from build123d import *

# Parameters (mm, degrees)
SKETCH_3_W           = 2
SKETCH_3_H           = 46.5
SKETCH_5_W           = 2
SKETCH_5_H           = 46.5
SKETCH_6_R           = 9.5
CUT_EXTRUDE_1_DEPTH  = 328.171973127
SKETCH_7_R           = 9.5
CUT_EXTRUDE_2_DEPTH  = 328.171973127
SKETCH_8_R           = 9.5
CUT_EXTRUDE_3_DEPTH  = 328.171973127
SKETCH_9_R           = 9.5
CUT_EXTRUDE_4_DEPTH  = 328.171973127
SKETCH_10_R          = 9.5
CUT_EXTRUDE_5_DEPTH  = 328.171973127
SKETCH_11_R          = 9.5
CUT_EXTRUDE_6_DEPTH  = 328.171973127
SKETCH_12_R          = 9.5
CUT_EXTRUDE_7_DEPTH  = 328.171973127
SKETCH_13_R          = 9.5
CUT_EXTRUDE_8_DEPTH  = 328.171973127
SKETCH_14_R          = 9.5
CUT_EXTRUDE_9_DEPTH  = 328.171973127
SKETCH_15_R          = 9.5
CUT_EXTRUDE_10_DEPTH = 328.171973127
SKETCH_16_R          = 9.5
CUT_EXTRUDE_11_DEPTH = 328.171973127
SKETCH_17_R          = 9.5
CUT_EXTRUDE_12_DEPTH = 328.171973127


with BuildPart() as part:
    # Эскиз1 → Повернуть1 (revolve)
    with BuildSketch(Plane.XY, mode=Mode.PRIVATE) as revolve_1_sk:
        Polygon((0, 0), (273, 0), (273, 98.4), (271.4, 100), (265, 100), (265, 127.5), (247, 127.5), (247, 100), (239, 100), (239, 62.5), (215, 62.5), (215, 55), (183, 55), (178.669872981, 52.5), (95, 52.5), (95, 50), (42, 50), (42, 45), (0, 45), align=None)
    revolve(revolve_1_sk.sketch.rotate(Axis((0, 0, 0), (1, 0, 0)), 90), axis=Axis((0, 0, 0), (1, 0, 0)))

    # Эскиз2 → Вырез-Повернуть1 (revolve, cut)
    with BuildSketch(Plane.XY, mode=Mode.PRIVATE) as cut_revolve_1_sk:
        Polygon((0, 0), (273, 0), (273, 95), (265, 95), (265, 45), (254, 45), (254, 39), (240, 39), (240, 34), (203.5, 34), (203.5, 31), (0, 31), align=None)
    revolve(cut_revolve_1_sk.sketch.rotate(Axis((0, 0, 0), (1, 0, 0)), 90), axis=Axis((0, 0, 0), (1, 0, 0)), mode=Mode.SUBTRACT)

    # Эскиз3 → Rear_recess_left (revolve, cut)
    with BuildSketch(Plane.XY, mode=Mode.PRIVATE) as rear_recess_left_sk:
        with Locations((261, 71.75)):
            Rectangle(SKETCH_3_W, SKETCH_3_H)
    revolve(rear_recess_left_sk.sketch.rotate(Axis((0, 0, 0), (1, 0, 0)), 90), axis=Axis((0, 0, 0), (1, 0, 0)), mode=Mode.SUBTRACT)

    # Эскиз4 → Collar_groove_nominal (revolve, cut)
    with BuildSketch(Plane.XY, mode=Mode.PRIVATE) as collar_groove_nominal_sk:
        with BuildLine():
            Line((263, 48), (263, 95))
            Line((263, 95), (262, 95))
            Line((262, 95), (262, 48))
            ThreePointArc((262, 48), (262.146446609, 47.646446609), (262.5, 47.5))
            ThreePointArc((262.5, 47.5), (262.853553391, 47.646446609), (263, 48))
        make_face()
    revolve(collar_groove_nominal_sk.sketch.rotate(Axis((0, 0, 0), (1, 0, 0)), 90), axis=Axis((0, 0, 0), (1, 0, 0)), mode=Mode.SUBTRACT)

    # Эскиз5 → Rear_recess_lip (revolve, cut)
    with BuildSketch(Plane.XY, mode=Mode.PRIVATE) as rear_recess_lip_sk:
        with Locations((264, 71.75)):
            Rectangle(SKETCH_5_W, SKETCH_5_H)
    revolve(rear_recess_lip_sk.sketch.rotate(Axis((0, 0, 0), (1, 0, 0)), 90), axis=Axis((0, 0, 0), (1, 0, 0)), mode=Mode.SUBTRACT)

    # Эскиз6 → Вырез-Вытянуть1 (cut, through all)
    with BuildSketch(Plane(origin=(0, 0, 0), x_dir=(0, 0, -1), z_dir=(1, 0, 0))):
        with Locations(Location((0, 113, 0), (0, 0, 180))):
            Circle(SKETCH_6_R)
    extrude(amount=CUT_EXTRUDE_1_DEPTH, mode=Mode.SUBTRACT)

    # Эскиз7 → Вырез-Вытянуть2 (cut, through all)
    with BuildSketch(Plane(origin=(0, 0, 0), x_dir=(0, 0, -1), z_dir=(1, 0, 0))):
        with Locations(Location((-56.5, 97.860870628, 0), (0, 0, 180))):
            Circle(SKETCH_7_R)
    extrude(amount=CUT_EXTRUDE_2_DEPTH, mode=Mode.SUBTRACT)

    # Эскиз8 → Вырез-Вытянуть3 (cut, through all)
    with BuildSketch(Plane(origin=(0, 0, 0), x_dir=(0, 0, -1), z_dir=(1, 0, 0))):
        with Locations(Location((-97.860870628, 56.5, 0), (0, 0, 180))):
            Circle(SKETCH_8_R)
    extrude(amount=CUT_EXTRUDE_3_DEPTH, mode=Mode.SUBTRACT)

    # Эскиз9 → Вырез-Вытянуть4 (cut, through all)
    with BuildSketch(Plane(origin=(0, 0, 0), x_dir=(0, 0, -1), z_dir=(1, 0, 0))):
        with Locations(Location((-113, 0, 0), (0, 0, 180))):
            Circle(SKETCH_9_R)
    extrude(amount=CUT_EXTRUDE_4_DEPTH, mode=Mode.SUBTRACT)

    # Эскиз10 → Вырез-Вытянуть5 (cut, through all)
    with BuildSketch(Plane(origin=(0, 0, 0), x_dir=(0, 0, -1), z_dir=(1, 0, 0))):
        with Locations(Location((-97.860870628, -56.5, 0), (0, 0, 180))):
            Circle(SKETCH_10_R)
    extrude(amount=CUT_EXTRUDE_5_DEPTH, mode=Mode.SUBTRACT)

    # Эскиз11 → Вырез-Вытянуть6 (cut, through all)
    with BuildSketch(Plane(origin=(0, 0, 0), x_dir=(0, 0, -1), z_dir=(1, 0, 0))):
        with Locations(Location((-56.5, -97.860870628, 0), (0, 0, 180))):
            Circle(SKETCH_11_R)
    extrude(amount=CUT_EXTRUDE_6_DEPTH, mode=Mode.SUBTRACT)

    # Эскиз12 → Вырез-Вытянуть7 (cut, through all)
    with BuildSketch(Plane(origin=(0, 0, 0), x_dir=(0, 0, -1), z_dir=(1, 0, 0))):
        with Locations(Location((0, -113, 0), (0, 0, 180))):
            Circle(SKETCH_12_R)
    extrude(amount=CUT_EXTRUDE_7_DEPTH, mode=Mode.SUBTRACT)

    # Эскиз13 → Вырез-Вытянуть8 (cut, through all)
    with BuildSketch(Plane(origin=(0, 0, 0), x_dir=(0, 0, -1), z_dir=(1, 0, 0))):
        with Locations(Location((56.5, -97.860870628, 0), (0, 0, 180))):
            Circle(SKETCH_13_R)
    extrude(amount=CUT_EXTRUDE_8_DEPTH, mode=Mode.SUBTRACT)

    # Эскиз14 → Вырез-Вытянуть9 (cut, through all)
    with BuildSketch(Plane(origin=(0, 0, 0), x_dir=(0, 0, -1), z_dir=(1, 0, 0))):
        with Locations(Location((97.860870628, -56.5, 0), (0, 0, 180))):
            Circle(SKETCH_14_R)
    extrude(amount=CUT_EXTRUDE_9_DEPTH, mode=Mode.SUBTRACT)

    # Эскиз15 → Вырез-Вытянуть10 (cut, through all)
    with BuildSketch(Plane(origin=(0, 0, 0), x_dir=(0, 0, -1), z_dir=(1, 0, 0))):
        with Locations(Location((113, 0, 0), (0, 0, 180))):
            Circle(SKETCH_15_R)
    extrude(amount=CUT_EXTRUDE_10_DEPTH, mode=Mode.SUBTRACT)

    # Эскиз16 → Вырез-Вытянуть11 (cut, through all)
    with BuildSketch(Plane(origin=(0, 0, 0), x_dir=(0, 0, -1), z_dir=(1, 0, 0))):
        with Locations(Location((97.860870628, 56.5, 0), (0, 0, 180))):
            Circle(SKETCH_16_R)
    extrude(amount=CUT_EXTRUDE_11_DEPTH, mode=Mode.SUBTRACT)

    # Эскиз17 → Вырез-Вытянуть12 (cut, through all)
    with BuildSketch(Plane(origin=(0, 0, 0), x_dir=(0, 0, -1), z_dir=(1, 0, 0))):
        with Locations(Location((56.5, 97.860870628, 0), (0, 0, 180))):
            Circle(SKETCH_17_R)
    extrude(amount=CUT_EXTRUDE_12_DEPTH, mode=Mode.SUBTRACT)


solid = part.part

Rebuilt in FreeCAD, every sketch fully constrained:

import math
import FreeCAD as App
import Part
import Sketcher

V = App.Vector
Q = App.Units.Quantity


def add_polygon(sketch, points):
    """Adds a closed chain of lines whose ends are joined by coincident constraints."""
    first, n = sketch.GeometryCount, len(points)
    for a, b in zip(points, points[1:] + points[:1]):
        sketch.addGeometry(Part.LineSegment(App.Vector(*a, 0), App.Vector(*b, 0)), False)
    for i in range(n):
        sketch.addConstraint(Sketcher.Constraint("Coincident", first + i, 2, first + (i + 1) % n, 1))

doc = App.newDocument("Part")
params = doc.addObject("Spreadsheet::Sheet", "Params")
for row, (alias, value) in enumerate([
    ("sketch1_width", "273 mm"),
    ("sketch1_width2", "18 mm"),
    ("sketch1_width3", "8 mm"),
    ("sketch1_width4", "24 mm"),
    ("sketch1_width5", "32 mm"),
    ("revolution_angle", "360 deg"),
    ("sketch2_width", "273 mm"),
    ("sketch2_width2", "8 mm"),
    ("sketch2_width3", "11 mm"),
    ("sketch2_width4", "14 mm"),
    ("sketch2_height", "95 mm"),
    ("groove_angle", "360 deg"),
    ("sketch3_width", "2 mm"),
    ("sketch3_height", "46.5 mm"),
    ("groove2_angle", "360 deg"),
    ("sketch4_radius", "0.5 mm"),
    ("sketch4_height", "47 mm"),
    ("groove3_angle", "360 deg"),
    ("sketch5_width", "2 mm"),
    ("sketch5_height", "46.5 mm"),
    ("groove4_angle", "360 deg"),
    ("sketch6_diameter", "19 mm"),
    ("sketch7_diameter", "19 mm"),
    ("sketch8_diameter", "19 mm"),
    ("sketch9_diameter", "19 mm"),
    ("sketch10_diameter", "19 mm"),
    ("sketch11_diameter", "19 mm"),
    ("sketch12_diameter", "19 mm"),
    ("sketch13_diameter", "19 mm"),
    ("sketch14_diameter", "19 mm"),
    ("sketch15_diameter", "19 mm"),
    ("sketch16_diameter", "19 mm"),
    ("sketch17_diameter", "19 mm"),
], start=1):
    params.set(f"A{row}", alias)
    params.set(f"B{row}", "=" + value)
    params.setAlias(f"B{row}", alias)

body = doc.addObject("PartDesign::Body", "Body")

# Sketch on XY plane
sketch1 = body.newObject("Sketcher::SketchObject", "Sketch")
sketch1.AttachmentSupport = (doc.getObject("XY_Plane"), [""])
sketch1.MapMode = "FlatFace"
add_polygon(sketch1, [(0, 0), (273, 0), (273, 98.4), (271.4, 100), (265, 100), (265, 127.5), (247, 127.5), (247, 100), (239, 100), (239, 62.5), (215, 62.5), (215, 55), (183, 55), (178.7, 52.5), (95, 52.5), (95, 50), (42, 50), (42, 45), (0, 45)])  # lines 0-18
sketch1.addConstraint([
    Sketcher.Constraint("Horizontal", 0),
    Sketcher.Constraint("Vertical", 1),
    Sketcher.Constraint("Horizontal", 3),
    Sketcher.Constraint("Vertical", 4),
    Sketcher.Constraint("Horizontal", 5),
    Sketcher.Constraint("Vertical", 6),
    Sketcher.Constraint("Horizontal", 7),
    Sketcher.Constraint("Vertical", 8),
    Sketcher.Constraint("Horizontal", 9),
    Sketcher.Constraint("Vertical", 10),
    Sketcher.Constraint("Horizontal", 11),
    Sketcher.Constraint("Horizontal", 13),
    Sketcher.Constraint("Vertical", 14),
    Sketcher.Constraint("Horizontal", 15),
    Sketcher.Constraint("Vertical", 16),
    Sketcher.Constraint("Horizontal", 17),
    Sketcher.Constraint("Vertical", 18),
    Sketcher.Constraint("Coincident", 18, 2, -1, 1),
    Sketcher.Constraint("Horizontal", 3, 2, 6, 2),
    Sketcher.Constraint("DistanceX", 0, 1, 0, 2, Q("273 mm")),
    Sketcher.Constraint("DistanceX", 5, 2, 5, 1, Q("18 mm")),
    Sketcher.Constraint("DistanceX", 7, 2, 7, 1, Q("8 mm")),
    Sketcher.Constraint("DistanceX", 9, 2, 9, 1, Q("24 mm")),
    Sketcher.Constraint("DistanceX", 11, 2, 11, 1, Q("32 mm")),
    Sketcher.Constraint("DistanceX", 15, 2, 15, 1, Q("53 mm")),
    Sketcher.Constraint("DistanceX", 17, 2, 17, 1, Q("42 mm")),
    Sketcher.Constraint("DistanceY", 16, 2, 16, 1, Q("5 mm")),
    Sketcher.Constraint("DistanceY", 18, 2, 18, 1, Q("45 mm")),
    Sketcher.Constraint("Angle", 2, Q("135 deg")),
    Sketcher.Constraint("Angle", 12, Q("-150 deg")),
    Sketcher.Constraint("Distance", 12, Q("5 mm")),
    Sketcher.Constraint("DistanceX", 3, 2, 3, 1, Q("6.4 mm")),
    Sketcher.Constraint("DistanceY", 1, 1, 1, 2, Q("98.4 mm")),
    Sketcher.Constraint("DistanceY", 4, 1, 4, 2, Q("27.5 mm")),
    Sketcher.Constraint("DistanceY", 8, 2, 8, 1, Q("37.5 mm")),
    Sketcher.Constraint("DistanceY", 10, 2, 10, 1, Q("7.5 mm")),
    Sketcher.Constraint("DistanceY", 14, 2, 14, 1, Q("2.5 mm")),
])
sketch1.setExpression("Constraints[38]", "Params.sketch1_width")
sketch1.setExpression("Constraints[39]", "Params.sketch1_width2")
sketch1.setExpression("Constraints[40]", "Params.sketch1_width3")
sketch1.setExpression("Constraints[41]", "Params.sketch1_width4")
sketch1.setExpression("Constraints[42]", "Params.sketch1_width5")
revolution = body.newObject("PartDesign::Revolution", "Revolution")
revolution.Profile = sketch1
revolution.ReferenceAxis = (sketch1, ["H_Axis"])
revolution.setExpression("Angle", "Params.revolution_angle")

# Sketch on XY plane
sketch2 = body.newObject("Sketcher::SketchObject", "Sketch001")
sketch2.AttachmentSupport = (doc.getObject("XY_Plane"), [""])
sketch2.MapMode = "FlatFace"
add_polygon(sketch2, [(0, 0), (273, 0), (273, 95), (265, 95), (265, 45), (254, 45), (254, 39), (240, 39), (240, 34), (203.5, 34), (203.5, 31), (0, 31)])  # lines 0-11
sketch2.addConstraint([
    Sketcher.Constraint("Horizontal", 0),
    Sketcher.Constraint("Vertical", 1),
    Sketcher.Constraint("Horizontal", 2),
    Sketcher.Constraint("Vertical", 3),
    Sketcher.Constraint("Horizontal", 4),
    Sketcher.Constraint("Vertical", 5),
    Sketcher.Constraint("Horizontal", 6),
    Sketcher.Constraint("Vertical", 7),
    Sketcher.Constraint("Horizontal", 8),
    Sketcher.Constraint("Vertical", 9),
    Sketcher.Constraint("Horizontal", 10),
    Sketcher.Constraint("Vertical", 11),
    Sketcher.Constraint("Coincident", 11, 2, -1, 1),
    Sketcher.Constraint("DistanceX", 0, 1, 0, 2, Q("273 mm")),
    Sketcher.Constraint("DistanceX", 2, 2, 2, 1, Q("8 mm")),
    Sketcher.Constraint("DistanceX", 4, 2, 4, 1, Q("11 mm")),
    Sketcher.Constraint("DistanceX", 6, 2, 6, 1, Q("14 mm")),
    Sketcher.Constraint("DistanceY", 1, 1, 1, 2, Q("95 mm")),
    Sketcher.Constraint("DistanceY", 3, 2, 3, 1, Q("50 mm")),
    Sketcher.Constraint("DistanceY", 5, 2, 5, 1, Q("6 mm")),
    Sketcher.Constraint("DistanceY", 7, 2, 7, 1, Q("5 mm")),
    Sketcher.Constraint("DistanceY", 9, 2, 9, 1, Q("3 mm")),
    Sketcher.Constraint("DistanceX", 8, 2, 8, 1, Q("36.5 mm")),
])
sketch2.setExpression("Constraints[25]", "Params.sketch2_width")
sketch2.setExpression("Constraints[26]", "Params.sketch2_width2")
sketch2.setExpression("Constraints[27]", "Params.sketch2_width3")
sketch2.setExpression("Constraints[28]", "Params.sketch2_width4")
sketch2.setExpression("Constraints[29]", "Params.sketch2_height")
groove = body.newObject("PartDesign::Groove", "Groove")
groove.Profile = sketch2
groove.ReferenceAxis = (sketch2, ["H_Axis"])
groove.setExpression("Angle", "Params.groove_angle")

# Sketch on XY plane
sketch3 = body.newObject("Sketcher::SketchObject", "Sketch002")
sketch3.AttachmentSupport = (doc.getObject("XY_Plane"), [""])
sketch3.MapMode = "FlatFace"
add_polygon(sketch3, [(260, 95), (260, 48.5), (262, 48.5), (262, 95)])  # lines 0-3
sketch3.addConstraint([
    Sketcher.Constraint("Vertical", 0),
    Sketcher.Constraint("Horizontal", 1),
    Sketcher.Constraint("Vertical", 2),
    Sketcher.Constraint("Horizontal", 3),
    Sketcher.Constraint("DistanceX", 1, 1, 1, 2, Q("2 mm")),
    Sketcher.Constraint("DistanceY", 0, 2, 0, 1, Q("46.5 mm")),
    Sketcher.Constraint("DistanceX", -1, 1, 0, 2, Q("260 mm")),
    Sketcher.Constraint("DistanceY", -1, 1, 2, 2, Q("95 mm")),
])
sketch3.setExpression("Constraints[8]", "Params.sketch3_width")
sketch3.setExpression("Constraints[9]", "Params.sketch3_height")
groove2 = body.newObject("PartDesign::Groove", "Groove001")
groove2.Profile = sketch3
groove2.ReferenceAxis = (sketch3, ["H_Axis"])
groove2.setExpression("Angle", "Params.groove2_angle")

# Sketch on XY plane
sketch4 = body.newObject("Sketcher::SketchObject", "Sketch003")
sketch4.AttachmentSupport = (doc.getObject("XY_Plane"), [""])
sketch4.MapMode = "FlatFace"
sketch4.addGeometry([
    Part.LineSegment(V(263, 48, 0), V(263, 95, 0)),  # 0
    Part.LineSegment(V(263, 95, 0), V(262, 95, 0)),  # 1
    Part.LineSegment(V(262, 95, 0), V(262, 48, 0)),  # 2
    Part.ArcOfCircle(Part.Circle(V(262.5, 48, 0), V(0, 0, 1), 0.5), math.radians(180), math.radians(270)),  # 3
    Part.ArcOfCircle(Part.Circle(V(262.5, 48, 0), V(0, 0, 1), 0.5), math.radians(-90), math.radians(0)),  # 4
], False)
sketch4.addConstraint([
    Sketcher.Constraint("Coincident", 0, 2, 1, 1),
    Sketcher.Constraint("Coincident", 1, 2, 2, 1),
    Sketcher.Constraint("Tangent", 2, 2, 3, 1),
    Sketcher.Constraint("Tangent", 3, 2, 4, 1),
    Sketcher.Constraint("Tangent", 4, 2, 0, 1),
    Sketcher.Constraint("Vertical", 0),
    Sketcher.Constraint("Horizontal", 1),
    Sketcher.Constraint("Vertical", 2),
    Sketcher.Constraint("Equal", 3, 4),
    Sketcher.Constraint("Vertical", 4, 3, 3, 2),
    Sketcher.Constraint("Radius", 3, Q("0.5 mm")),
    Sketcher.Constraint("DistanceY", 0, 1, 0, 2, Q("47 mm")),
    Sketcher.Constraint("DistanceY", -1, 1, 3, 3, Q("48 mm")),
    Sketcher.Constraint("DistanceX", -1, 1, 0, 2, Q("263 mm")),
])
sketch4.setExpression("Constraints[10]", "Params.sketch4_radius")
sketch4.setExpression("Constraints[11]", "Params.sketch4_height")
groove3 = body.newObject("PartDesign::Groove", "Groove002")
groove3.Profile = sketch4
groove3.ReferenceAxis = (sketch4, ["H_Axis"])
groove3.setExpression("Angle", "Params.groove3_angle")

# Sketch on XY plane
sketch5 = body.newObject("Sketcher::SketchObject", "Sketch004")
sketch5.AttachmentSupport = (doc.getObject("XY_Plane"), [""])
sketch5.MapMode = "FlatFace"
add_polygon(sketch5, [(263, 95), (263, 48.5), (265, 48.5), (265, 95)])  # lines 0-3
sketch5.addConstraint([
    Sketcher.Constraint("Vertical", 0),
    Sketcher.Constraint("Horizontal", 1),
    Sketcher.Constraint("Vertical", 2),
    Sketcher.Constraint("Horizontal", 3),
    Sketcher.Constraint("DistanceX", 1, 1, 1, 2, Q("2 mm")),
    Sketcher.Constraint("DistanceY", 0, 2, 0, 1, Q("46.5 mm")),
    Sketcher.Constraint("DistanceX", -1, 1, 0, 2, Q("263 mm")),
    Sketcher.Constraint("DistanceY", -1, 1, 2, 2, Q("95 mm")),
])
sketch5.setExpression("Constraints[8]", "Params.sketch5_width")
sketch5.setExpression("Constraints[9]", "Params.sketch5_height")
groove4 = body.newObject("PartDesign::Groove", "Groove003")
groove4.Profile = sketch5
groove4.ReferenceAxis = (sketch5, ["H_Axis"])
groove4.setExpression("Angle", "Params.groove4_angle")

# Sketch on YZ plane
sketch6 = body.newObject("Sketcher::SketchObject", "Sketch005")
sketch6.AttachmentSupport = (doc.getObject("YZ_Plane"), [""])
sketch6.MapMode = "FlatFace"
sketch6.addGeometry(Part.Circle(V(113, 0, 0), V(0, 0, 1), 10), False)
sketch6.addConstraint([
    Sketcher.Constraint("PointOnObject", 0, 3, -1),
    Sketcher.Constraint("Diameter", 0, Q("19 mm")),
    Sketcher.Constraint("DistanceX", -1, 1, 0, 3, Q("113 mm")),
])
sketch6.setExpression("Constraints[1]", "Params.sketch6_diameter")
pocket1 = body.newObject("PartDesign::Pocket", "Pocket")
pocket1.Profile = sketch6
pocket1.Type = "ThroughAll"
pocket1.Reversed = True

# Sketch on YZ plane
sketch7 = body.newObject("Sketcher::SketchObject", "Sketch006")
sketch7.AttachmentSupport = (doc.getObject("YZ_Plane"), [""])
sketch7.MapMode = "FlatFace"
sketch7.addGeometry(Part.Circle(V(98, 56, 0), V(0, 0, 1), 10), False)
sketch7.addConstraint([
    Sketcher.Constraint("Diameter", 0, Q("19 mm")),
    Sketcher.Constraint("DistanceY", -1, 1, 0, 3, Q("56.5 mm")),
    Sketcher.Constraint("DistanceX", -1, 1, 0, 3, Q("97.860871 mm")),
])
sketch7.setExpression("Constraints[0]", "Params.sketch7_diameter")
pocket2 = body.newObject("PartDesign::Pocket", "Pocket001")
pocket2.Profile = sketch7
pocket2.Type = "ThroughAll"
pocket2.Reversed = True

# Sketch on YZ plane
sketch8 = body.newObject("Sketcher::SketchObject", "Sketch007")
sketch8.AttachmentSupport = (doc.getObject("YZ_Plane"), [""])
sketch8.MapMode = "FlatFace"
sketch8.addGeometry(Part.Circle(V(56, 98, 0), V(0, 0, 1), 10), False)
sketch8.addConstraint([
    Sketcher.Constraint("Diameter", 0, Q("19 mm")),
    Sketcher.Constraint("DistanceX", -1, 1, 0, 3, Q("56.5 mm")),
    Sketcher.Constraint("DistanceY", -1, 1, 0, 3, Q("97.860871 mm")),
])
sketch8.setExpression("Constraints[0]", "Params.sketch8_diameter")
pocket3 = body.newObject("PartDesign::Pocket", "Pocket002")
pocket3.Profile = sketch8
pocket3.Type = "ThroughAll"
pocket3.Reversed = True

# Sketch on YZ plane
sketch9 = body.newObject("Sketcher::SketchObject", "Sketch008")
sketch9.AttachmentSupport = (doc.getObject("YZ_Plane"), [""])
sketch9.MapMode = "FlatFace"
sketch9.addGeometry(Part.Circle(V(0, 113, 0), V(0, 0, 1), 10), False)
sketch9.addConstraint([
    Sketcher.Constraint("PointOnObject", 0, 3, -2),
    Sketcher.Constraint("Diameter", 0, Q("19 mm")),
    Sketcher.Constraint("DistanceY", -1, 1, 0, 3, Q("113 mm")),
])
sketch9.setExpression("Constraints[1]", "Params.sketch9_diameter")
pocket4 = body.newObject("PartDesign::Pocket", "Pocket003")
pocket4.Profile = sketch9
pocket4.Type = "ThroughAll"
pocket4.Reversed = True

# Sketch on YZ plane
sketch10 = body.newObject("Sketcher::SketchObject", "Sketch009")
sketch10.AttachmentSupport = (doc.getObject("YZ_Plane"), [""])
sketch10.MapMode = "FlatFace"
sketch10.addGeometry(Part.Circle(V(-56, 98, 0), V(0, 0, 1), 10), False)
sketch10.addConstraint([
    Sketcher.Constraint("Diameter", 0, Q("19 mm")),
    Sketcher.Constraint("DistanceX", 0, 3, -1, 1, Q("56.5 mm")),
    Sketcher.Constraint("DistanceY", -1, 1, 0, 3, Q("97.860871 mm")),
])
sketch10.setExpression("Constraints[0]", "Params.sketch10_diameter")
pocket5 = body.newObject("PartDesign::Pocket", "Pocket004")
pocket5.Profile = sketch10
pocket5.Type = "ThroughAll"
pocket5.Reversed = True

# Sketch on YZ plane
sketch11 = body.newObject("Sketcher::SketchObject", "Sketch010")
sketch11.AttachmentSupport = (doc.getObject("YZ_Plane"), [""])
sketch11.MapMode = "FlatFace"
sketch11.addGeometry(Part.Circle(V(-98, 56, 0), V(0, 0, 1), 10), False)
sketch11.addConstraint([
    Sketcher.Constraint("Diameter", 0, Q("19 mm")),
    Sketcher.Constraint("DistanceY", -1, 1, 0, 3, Q("56.5 mm")),
    Sketcher.Constraint("DistanceX", 0, 3, -1, 1, Q("97.860871 mm")),
])
sketch11.setExpression("Constraints[0]", "Params.sketch11_diameter")
pocket6 = body.newObject("PartDesign::Pocket", "Pocket005")
pocket6.Profile = sketch11
pocket6.Type = "ThroughAll"
pocket6.Reversed = True

# Sketch on YZ plane
sketch12 = body.newObject("Sketcher::SketchObject", "Sketch011")
sketch12.AttachmentSupport = (doc.getObject("YZ_Plane"), [""])
sketch12.MapMode = "FlatFace"
sketch12.addGeometry(Part.Circle(V(-113, 0, 0), V(0, 0, 1), 10), False)
sketch12.addConstraint([
    Sketcher.Constraint("PointOnObject", 0, 3, -1),
    Sketcher.Constraint("Diameter", 0, Q("19 mm")),
    Sketcher.Constraint("DistanceX", 0, 3, -1, 1, Q("113 mm")),
])
sketch12.setExpression("Constraints[1]", "Params.sketch12_diameter")
pocket7 = body.newObject("PartDesign::Pocket", "Pocket006")
pocket7.Profile = sketch12
pocket7.Type = "ThroughAll"
pocket7.Reversed = True

# Sketch on YZ plane
sketch13 = body.newObject("Sketcher::SketchObject", "Sketch012")
sketch13.AttachmentSupport = (doc.getObject("YZ_Plane"), [""])
sketch13.MapMode = "FlatFace"
sketch13.addGeometry(Part.Circle(V(-98, -56, 0), V(0, 0, 1), 10), False)
sketch13.addConstraint([
    Sketcher.Constraint("Diameter", 0, Q("19 mm")),
    Sketcher.Constraint("DistanceY", 0, 3, -1, 1, Q("56.5 mm")),
    Sketcher.Constraint("DistanceX", 0, 3, -1, 1, Q("97.860871 mm")),
])
sketch13.setExpression("Constraints[0]", "Params.sketch13_diameter")
pocket8 = body.newObject("PartDesign::Pocket", "Pocket007")
pocket8.Profile = sketch13
pocket8.Type = "ThroughAll"
pocket8.Reversed = True

# Sketch on YZ plane
sketch14 = body.newObject("Sketcher::SketchObject", "Sketch013")
sketch14.AttachmentSupport = (doc.getObject("YZ_Plane"), [""])
sketch14.MapMode = "FlatFace"
sketch14.addGeometry(Part.Circle(V(-56, -98, 0), V(0, 0, 1), 10), False)
sketch14.addConstraint([
    Sketcher.Constraint("Diameter", 0, Q("19 mm")),
    Sketcher.Constraint("DistanceX", 0, 3, -1, 1, Q("56.5 mm")),
    Sketcher.Constraint("DistanceY", 0, 3, -1, 1, Q("97.860871 mm")),
])
sketch14.setExpression("Constraints[0]", "Params.sketch14_diameter")
pocket9 = body.newObject("PartDesign::Pocket", "Pocket008")
pocket9.Profile = sketch14
pocket9.Type = "ThroughAll"
pocket9.Reversed = True

# Sketch on YZ plane
sketch15 = body.newObject("Sketcher::SketchObject", "Sketch014")
sketch15.AttachmentSupport = (doc.getObject("YZ_Plane"), [""])
sketch15.MapMode = "FlatFace"
sketch15.addGeometry(Part.Circle(V(0, -113, 0), V(0, 0, 1), 10), False)
sketch15.addConstraint([
    Sketcher.Constraint("PointOnObject", 0, 3, -2),
    Sketcher.Constraint("Diameter", 0, Q("19 mm")),
    Sketcher.Constraint("DistanceY", 0, 3, -1, 1, Q("113 mm")),
])
sketch15.setExpression("Constraints[1]", "Params.sketch15_diameter")
pocket10 = body.newObject("PartDesign::Pocket", "Pocket009")
pocket10.Profile = sketch15
pocket10.Type = "ThroughAll"
pocket10.Reversed = True

# Sketch on YZ plane
sketch16 = body.newObject("Sketcher::SketchObject", "Sketch015")
sketch16.AttachmentSupport = (doc.getObject("YZ_Plane"), [""])
sketch16.MapMode = "FlatFace"
sketch16.addGeometry(Part.Circle(V(56, -98, 0), V(0, 0, 1), 10), False)
sketch16.addConstraint([
    Sketcher.Constraint("Diameter", 0, Q("19 mm")),
    Sketcher.Constraint("DistanceX", -1, 1, 0, 3, Q("56.5 mm")),
    Sketcher.Constraint("DistanceY", 0, 3, -1, 1, Q("97.860871 mm")),
])
sketch16.setExpression("Constraints[0]", "Params.sketch16_diameter")
pocket11 = body.newObject("PartDesign::Pocket", "Pocket010")
pocket11.Profile = sketch16
pocket11.Type = "ThroughAll"
pocket11.Reversed = True

# Sketch on YZ plane
sketch17 = body.newObject("Sketcher::SketchObject", "Sketch016")
sketch17.AttachmentSupport = (doc.getObject("YZ_Plane"), [""])
sketch17.MapMode = "FlatFace"
sketch17.addGeometry(Part.Circle(V(98, -56, 0), V(0, 0, 1), 10), False)
sketch17.addConstraint([
    Sketcher.Constraint("Diameter", 0, Q("19 mm")),
    Sketcher.Constraint("DistanceY", 0, 3, -1, 1, Q("56.5 mm")),
    Sketcher.Constraint("DistanceX", -1, 1, 0, 3, Q("97.860871 mm")),
])
sketch17.setExpression("Constraints[0]", "Params.sketch17_diameter")
pocket12 = body.newObject("PartDesign::Pocket", "Pocket011")
pocket12.Profile = sketch17
pocket12.Type = "ThroughAll"
pocket12.Reversed = True

doc.recompute()
